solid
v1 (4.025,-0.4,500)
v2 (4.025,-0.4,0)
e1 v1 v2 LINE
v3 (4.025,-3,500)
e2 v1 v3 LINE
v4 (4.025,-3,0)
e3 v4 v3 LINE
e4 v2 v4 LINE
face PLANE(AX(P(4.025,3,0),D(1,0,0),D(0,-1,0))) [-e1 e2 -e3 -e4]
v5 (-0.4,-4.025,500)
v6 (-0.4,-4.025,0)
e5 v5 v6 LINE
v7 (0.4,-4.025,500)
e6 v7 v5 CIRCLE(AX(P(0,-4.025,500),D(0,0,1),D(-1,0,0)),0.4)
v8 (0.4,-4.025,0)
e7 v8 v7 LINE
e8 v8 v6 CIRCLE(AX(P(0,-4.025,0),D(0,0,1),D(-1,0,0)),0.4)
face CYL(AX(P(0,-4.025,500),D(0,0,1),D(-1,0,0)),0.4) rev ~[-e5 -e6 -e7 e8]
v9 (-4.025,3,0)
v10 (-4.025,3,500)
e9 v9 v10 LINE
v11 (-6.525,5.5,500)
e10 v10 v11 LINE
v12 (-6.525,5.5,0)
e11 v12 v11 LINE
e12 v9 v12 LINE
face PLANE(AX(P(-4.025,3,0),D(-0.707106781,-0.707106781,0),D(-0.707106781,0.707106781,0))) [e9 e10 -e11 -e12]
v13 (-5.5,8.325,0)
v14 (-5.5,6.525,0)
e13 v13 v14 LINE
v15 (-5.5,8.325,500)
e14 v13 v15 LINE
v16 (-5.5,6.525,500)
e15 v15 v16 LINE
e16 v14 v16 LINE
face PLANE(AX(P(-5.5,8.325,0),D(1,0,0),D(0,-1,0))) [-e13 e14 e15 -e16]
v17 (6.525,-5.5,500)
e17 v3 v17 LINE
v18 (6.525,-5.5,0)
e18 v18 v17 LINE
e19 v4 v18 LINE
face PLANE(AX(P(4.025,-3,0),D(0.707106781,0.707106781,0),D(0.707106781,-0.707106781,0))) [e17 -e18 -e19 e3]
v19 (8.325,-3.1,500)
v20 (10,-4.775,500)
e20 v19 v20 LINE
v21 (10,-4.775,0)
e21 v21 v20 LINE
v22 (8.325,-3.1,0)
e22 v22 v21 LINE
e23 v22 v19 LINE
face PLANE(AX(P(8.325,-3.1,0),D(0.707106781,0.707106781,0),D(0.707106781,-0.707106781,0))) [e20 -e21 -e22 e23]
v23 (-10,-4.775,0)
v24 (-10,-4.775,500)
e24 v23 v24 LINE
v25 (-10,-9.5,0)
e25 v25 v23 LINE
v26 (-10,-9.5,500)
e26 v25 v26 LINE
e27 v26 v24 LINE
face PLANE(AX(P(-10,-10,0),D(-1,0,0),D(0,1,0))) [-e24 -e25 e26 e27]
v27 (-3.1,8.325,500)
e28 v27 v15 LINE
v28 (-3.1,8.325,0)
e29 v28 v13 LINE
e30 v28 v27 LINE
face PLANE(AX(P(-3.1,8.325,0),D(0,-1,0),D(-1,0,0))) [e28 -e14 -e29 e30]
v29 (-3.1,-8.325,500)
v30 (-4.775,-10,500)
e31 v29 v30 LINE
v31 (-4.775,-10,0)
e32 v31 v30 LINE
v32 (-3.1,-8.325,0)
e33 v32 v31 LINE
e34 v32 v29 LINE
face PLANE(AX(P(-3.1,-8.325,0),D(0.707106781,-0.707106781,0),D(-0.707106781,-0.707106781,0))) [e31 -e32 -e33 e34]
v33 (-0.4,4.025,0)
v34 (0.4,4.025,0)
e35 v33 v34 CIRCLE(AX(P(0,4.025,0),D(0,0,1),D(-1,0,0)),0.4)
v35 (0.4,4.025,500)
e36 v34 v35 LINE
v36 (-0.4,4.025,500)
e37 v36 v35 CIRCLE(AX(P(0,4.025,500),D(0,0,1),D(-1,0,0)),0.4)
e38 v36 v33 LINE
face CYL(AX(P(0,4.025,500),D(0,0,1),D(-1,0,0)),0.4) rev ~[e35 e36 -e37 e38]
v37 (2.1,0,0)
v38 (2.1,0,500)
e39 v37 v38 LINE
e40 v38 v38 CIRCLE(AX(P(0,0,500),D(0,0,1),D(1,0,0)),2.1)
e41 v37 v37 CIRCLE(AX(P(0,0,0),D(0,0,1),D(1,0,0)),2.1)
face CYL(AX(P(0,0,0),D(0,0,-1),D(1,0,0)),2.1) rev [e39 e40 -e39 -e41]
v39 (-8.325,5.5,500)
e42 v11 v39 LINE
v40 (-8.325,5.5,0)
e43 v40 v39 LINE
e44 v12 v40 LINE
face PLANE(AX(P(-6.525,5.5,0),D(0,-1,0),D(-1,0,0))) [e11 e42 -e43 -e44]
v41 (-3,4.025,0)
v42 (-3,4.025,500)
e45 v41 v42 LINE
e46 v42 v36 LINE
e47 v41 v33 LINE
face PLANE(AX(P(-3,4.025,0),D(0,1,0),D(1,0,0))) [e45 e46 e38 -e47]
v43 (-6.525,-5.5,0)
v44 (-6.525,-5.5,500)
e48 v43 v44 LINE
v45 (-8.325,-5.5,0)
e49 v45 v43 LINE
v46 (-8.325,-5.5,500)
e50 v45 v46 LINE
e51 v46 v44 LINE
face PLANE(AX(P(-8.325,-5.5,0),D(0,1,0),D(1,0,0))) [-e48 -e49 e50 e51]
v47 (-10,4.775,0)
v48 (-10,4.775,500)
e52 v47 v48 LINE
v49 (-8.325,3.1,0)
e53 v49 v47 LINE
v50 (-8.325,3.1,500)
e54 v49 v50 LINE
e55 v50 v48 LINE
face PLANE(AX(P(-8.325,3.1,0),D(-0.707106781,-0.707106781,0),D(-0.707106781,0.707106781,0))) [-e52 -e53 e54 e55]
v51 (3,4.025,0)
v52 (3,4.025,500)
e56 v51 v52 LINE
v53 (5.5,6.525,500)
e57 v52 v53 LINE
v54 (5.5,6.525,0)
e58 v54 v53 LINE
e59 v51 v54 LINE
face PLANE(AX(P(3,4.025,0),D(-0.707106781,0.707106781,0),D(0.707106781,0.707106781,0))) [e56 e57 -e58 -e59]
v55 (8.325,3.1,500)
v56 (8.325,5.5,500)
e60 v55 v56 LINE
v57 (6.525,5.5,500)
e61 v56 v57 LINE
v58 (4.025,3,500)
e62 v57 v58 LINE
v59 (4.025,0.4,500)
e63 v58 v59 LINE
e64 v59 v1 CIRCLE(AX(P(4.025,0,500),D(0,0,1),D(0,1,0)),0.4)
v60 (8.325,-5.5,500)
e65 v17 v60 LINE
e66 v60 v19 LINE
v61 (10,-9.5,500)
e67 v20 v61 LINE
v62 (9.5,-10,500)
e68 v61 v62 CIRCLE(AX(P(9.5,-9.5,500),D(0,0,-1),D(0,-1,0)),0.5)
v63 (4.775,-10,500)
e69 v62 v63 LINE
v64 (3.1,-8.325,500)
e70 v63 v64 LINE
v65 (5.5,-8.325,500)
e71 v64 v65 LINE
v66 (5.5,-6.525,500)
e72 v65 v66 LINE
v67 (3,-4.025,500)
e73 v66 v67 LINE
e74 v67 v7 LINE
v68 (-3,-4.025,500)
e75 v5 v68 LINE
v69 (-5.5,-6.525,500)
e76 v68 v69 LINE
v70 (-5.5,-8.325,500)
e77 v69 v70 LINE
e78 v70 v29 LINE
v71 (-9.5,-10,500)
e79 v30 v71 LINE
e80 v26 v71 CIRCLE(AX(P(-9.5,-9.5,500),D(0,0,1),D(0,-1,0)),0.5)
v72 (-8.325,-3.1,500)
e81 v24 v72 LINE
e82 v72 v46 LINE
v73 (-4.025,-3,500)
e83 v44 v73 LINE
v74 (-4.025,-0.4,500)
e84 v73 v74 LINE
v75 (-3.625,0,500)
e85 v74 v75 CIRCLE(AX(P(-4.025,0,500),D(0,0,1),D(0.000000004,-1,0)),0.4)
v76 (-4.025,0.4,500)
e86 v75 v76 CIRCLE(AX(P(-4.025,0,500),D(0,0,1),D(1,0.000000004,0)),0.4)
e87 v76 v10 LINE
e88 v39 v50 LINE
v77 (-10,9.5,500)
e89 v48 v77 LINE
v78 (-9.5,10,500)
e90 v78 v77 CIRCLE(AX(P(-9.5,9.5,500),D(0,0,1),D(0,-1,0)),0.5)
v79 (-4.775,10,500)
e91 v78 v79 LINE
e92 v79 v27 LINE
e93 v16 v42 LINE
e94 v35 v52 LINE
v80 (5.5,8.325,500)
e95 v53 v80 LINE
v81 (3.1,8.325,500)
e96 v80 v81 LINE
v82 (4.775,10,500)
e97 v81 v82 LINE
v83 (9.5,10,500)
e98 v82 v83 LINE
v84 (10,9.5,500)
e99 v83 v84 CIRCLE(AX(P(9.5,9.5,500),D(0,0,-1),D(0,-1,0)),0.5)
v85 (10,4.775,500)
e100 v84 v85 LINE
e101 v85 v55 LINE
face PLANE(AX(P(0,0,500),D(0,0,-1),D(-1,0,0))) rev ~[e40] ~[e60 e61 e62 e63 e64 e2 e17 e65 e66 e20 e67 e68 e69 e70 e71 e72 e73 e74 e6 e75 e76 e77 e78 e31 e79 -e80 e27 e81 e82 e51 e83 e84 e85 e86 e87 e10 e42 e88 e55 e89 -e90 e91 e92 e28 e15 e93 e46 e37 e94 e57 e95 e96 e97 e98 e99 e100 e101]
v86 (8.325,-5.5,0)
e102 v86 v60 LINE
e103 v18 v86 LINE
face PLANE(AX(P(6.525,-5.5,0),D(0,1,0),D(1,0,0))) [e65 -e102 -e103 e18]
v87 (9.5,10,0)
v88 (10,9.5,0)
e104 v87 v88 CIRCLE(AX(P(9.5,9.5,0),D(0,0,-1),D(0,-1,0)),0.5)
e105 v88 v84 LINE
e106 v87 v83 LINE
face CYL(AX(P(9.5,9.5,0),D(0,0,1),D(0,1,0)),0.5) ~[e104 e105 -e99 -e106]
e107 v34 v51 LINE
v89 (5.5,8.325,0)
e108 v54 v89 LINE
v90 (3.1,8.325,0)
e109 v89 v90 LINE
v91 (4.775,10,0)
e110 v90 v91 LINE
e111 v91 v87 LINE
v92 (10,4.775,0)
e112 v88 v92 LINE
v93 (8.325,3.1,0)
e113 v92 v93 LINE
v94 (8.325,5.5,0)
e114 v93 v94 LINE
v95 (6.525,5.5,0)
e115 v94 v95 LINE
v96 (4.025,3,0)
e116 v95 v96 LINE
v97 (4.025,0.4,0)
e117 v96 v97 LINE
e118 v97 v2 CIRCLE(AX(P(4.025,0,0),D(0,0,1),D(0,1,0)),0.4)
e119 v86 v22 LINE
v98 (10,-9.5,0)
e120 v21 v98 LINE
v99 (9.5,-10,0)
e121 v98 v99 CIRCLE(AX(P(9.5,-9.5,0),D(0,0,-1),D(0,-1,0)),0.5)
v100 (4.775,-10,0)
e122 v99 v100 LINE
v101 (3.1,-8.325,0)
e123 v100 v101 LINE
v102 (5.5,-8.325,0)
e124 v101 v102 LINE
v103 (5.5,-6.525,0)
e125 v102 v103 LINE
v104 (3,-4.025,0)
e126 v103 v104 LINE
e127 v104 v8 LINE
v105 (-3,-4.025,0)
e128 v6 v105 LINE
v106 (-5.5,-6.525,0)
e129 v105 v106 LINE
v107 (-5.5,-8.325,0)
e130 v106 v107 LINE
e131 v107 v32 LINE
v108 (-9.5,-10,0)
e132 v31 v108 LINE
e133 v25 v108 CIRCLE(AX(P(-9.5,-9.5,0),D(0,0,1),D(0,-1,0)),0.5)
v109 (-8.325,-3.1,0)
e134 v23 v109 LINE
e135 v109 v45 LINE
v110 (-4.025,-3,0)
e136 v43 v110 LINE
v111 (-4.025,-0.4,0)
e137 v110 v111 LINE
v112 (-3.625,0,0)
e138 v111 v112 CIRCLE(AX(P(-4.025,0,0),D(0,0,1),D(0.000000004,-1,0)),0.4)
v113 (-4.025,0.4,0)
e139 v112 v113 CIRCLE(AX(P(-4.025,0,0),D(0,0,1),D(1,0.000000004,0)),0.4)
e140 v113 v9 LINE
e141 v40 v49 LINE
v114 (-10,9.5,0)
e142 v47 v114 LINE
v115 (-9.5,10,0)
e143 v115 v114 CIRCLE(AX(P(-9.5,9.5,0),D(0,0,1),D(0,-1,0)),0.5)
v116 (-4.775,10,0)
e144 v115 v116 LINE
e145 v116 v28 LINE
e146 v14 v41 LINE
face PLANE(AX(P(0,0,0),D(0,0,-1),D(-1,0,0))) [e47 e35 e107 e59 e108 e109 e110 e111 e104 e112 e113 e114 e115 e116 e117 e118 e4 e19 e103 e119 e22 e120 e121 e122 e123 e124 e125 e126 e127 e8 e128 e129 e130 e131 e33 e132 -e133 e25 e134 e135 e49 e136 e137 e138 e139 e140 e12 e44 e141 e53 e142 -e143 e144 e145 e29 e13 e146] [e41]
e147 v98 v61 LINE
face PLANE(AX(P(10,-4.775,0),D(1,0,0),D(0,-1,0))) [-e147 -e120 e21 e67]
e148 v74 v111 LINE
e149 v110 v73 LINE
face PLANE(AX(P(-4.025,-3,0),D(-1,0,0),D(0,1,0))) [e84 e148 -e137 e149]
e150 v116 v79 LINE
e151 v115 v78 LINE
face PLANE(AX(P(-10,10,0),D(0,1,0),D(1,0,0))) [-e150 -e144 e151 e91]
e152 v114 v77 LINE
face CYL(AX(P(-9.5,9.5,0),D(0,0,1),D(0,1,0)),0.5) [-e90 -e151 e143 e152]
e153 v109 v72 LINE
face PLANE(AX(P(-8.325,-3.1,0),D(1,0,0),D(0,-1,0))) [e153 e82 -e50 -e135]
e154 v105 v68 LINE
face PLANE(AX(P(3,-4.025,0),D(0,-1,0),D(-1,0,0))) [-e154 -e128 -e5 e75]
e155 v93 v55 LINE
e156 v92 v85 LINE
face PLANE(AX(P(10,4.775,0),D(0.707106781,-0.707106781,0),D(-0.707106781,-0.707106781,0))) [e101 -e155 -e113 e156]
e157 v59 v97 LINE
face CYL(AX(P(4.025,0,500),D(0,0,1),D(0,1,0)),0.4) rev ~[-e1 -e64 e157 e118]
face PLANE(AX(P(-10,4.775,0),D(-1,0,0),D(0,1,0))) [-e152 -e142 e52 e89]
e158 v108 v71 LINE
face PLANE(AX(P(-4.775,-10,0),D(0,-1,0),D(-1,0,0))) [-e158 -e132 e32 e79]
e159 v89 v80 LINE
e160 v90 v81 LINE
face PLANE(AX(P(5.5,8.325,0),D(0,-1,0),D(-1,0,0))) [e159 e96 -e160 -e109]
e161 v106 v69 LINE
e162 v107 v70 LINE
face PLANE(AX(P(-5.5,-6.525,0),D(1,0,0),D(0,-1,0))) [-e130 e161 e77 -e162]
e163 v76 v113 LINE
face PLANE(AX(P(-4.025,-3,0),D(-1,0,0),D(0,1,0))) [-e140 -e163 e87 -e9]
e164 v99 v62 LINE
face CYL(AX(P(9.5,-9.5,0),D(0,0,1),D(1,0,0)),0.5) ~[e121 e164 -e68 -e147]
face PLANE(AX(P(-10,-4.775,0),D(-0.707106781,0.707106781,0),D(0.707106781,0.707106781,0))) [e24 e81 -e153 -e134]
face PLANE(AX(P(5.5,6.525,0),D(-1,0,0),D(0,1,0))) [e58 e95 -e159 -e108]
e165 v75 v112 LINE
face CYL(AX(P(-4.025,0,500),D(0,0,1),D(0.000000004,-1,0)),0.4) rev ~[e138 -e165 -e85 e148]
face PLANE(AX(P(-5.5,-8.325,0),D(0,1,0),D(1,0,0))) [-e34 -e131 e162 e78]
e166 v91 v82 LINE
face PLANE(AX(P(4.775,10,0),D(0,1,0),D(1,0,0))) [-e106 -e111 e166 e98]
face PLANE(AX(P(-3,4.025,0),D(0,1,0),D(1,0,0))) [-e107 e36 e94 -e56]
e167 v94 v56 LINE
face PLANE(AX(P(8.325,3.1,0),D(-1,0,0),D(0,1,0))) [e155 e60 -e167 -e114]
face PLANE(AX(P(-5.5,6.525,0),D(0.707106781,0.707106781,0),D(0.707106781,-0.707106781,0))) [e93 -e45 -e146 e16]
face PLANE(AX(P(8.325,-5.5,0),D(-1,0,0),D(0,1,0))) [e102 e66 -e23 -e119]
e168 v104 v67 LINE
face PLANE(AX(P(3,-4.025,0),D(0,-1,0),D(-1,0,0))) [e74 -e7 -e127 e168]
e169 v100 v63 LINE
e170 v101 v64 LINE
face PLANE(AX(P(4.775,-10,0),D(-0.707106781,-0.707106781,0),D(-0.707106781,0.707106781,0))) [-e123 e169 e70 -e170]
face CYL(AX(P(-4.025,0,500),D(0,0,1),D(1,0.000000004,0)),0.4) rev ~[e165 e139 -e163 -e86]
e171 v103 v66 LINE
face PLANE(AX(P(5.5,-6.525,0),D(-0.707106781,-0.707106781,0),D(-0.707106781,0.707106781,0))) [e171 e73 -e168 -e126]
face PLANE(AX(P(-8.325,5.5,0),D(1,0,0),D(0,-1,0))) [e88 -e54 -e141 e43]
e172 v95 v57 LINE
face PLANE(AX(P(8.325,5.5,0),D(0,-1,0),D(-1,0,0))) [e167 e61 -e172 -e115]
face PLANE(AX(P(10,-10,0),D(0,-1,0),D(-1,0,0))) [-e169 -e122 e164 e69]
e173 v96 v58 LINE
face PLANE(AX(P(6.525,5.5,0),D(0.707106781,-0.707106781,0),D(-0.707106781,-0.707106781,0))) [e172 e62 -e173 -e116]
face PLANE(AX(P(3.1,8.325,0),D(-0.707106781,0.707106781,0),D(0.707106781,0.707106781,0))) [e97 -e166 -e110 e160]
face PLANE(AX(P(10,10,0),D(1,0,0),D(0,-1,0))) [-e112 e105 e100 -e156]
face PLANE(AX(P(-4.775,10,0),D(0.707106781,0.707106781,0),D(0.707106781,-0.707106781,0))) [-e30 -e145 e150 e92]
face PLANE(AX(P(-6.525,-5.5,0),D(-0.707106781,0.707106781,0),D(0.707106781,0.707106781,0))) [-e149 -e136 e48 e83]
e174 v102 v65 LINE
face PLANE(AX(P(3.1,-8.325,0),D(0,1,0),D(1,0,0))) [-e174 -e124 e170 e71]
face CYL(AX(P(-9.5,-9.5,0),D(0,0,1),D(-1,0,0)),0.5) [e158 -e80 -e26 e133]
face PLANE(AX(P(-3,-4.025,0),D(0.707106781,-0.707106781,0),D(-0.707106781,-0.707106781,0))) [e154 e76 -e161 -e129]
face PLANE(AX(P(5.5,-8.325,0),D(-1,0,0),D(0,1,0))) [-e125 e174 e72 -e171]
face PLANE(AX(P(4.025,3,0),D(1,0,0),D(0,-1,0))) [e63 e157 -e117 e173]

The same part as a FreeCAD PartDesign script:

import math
import FreeCAD as App
import Part
import Sketcher
from FreeCAD import Vector
Q = App.Units.Quantity


def edges_at(feature, points):
    """Names of the edges that pass closest to the given points."""
    edges = feature.Shape.Edges
    near = lambda p: min(range(len(edges)), key=lambda i: edges[i].distToShape(Part.Vertex(*p))[0])
    return sorted({f"Edge{near(p) + 1}" for p in points})


def add_polygon(sketch, points):
    """Adds a closed chain of lines whose ends are joined by coincident constraints."""
    first, n = sketch.GeometryCount, len(points)
    for a, b in zip(points, points[1:] + points[:1]):
        sketch.addGeometry(Part.LineSegment(App.Vector(*a, 0), App.Vector(*b, 0)), False)
    for i in range(n):
        sketch.addConstraint(Sketcher.Constraint("Coincident", first + i, 2, first + (i + 1) % n, 1))

doc = App.newDocument("Part")
body = doc.addObject("PartDesign::Body", "Body")

# Sketch on XY plane
sketch1 = doc.addObject("Sketcher::SketchObject", "Sketch")
body.addObject(sketch1)
sketch1.AttachmentSupport = (doc.XY_Plane, [""])
sketch1.MapMode = "FlatFace"
add_polygon(sketch1, [(-4.8, 10), (-10, 10), (-10, 4.8), (-8.3, 3.1), (-8.3, 5.5), (-6.5, 5.5), (-4, 3), (-4, -3), (-6.5, -5.5), (-8.3, -5.5), (-8.3, -3.1), (-10, -4.8), (-10, -10), (-4.8, -10), (-3.1, -8.3), (-5.5, -8.3), (-5.5, -6.5), (-3, -4), (3, -4), (5.5, -6.5), (5.5, -8.3), (3.1, -8.3), (4.8, -10), (10, -10), (10, -4.8), (8.3, -3.1), (8.3, -5.5), (6.5, -5.5), (4, -3), (4, 3), (6.5, 5.5), (8.3, 5.5), (8.3, 3.1), (10, 4.8), (10, 10), (4.8, 10), (3.1, 8.3), (5.5, 8.3), (5.5, 6.5), (3, 4), (-3, 4), (-5.5, 6.5), (-5.5, 8.3), (-3.1, 8.3)])  # lines 0-43
sketch1.addGeometry(Part.Circle(Vector(0, 0, 0), Vector(0, 0, 1), 2.1), False)  # 44
sketch1.addConstraint([
    Sketcher.Constraint("Horizontal", 0),
    Sketcher.Constraint("Vertical", 1),
    Sketcher.Constraint("Vertical", 3),
    Sketcher.Constraint("Horizontal", 4),
    Sketcher.Constraint("Vertical", 6),
    Sketcher.Constraint("Horizontal", 8),
    Sketcher.Constraint("Vertical", 9),
    Sketcher.Constraint("Vertical", 11),
    Sketcher.Constraint("Horizontal", 12),
    Sketcher.Constraint("Horizontal", 14),
    Sketcher.Constraint("Vertical", 15),
    Sketcher.Constraint("Horizontal", 17),
    Sketcher.Constraint("Vertical", 19),
    Sketcher.Constraint("Horizontal", 20),
    Sketcher.Constraint("Horizontal", 22),
    Sketcher.Constraint("Vertical", 23),
    Sketcher.Constraint("Vertical", 25),
    Sketcher.Constraint("Horizontal", 26),
    Sketcher.Constraint("Vertical", 28),
    Sketcher.Constraint("Horizontal", 30),
    Sketcher.Constraint("Vertical", 31),
    Sketcher.Constraint("Vertical", 33),
    Sketcher.Constraint("Horizontal", 34),
    Sketcher.Constraint("Horizontal", 36),
    Sketcher.Constraint("Vertical", 37),
    Sketcher.Constraint("Horizontal", 39),
    Sketcher.Constraint("Vertical", 41),
    Sketcher.Constraint("Horizontal", 42),
    Sketcher.Constraint("Coincident", 44, 3, -1, 1),
    Sketcher.Constraint("Symmetric", 0, 2, 22, 2, -1, 1),
    Sketcher.Constraint("Symmetric", 2, 2, 24, 2, -1, 1),
    Sketcher.Constraint("Symmetric", 4, 2, 26, 2, -1, 1),
    Sketcher.Constraint("Symmetric", 5, 2, 27, 2, -1, 1),
    Sketcher.Constraint("Symmetric", 7, 2, 29, 2, -1, 1),
    Sketcher.Constraint("Symmetric", 9, 2, 31, 2, -1, 1),
    Sketcher.Constraint("Symmetric", 10, 2, 32, 2, -1, 1),
    Sketcher.Constraint("Symmetric", 12, 2, 34, 2, -1, 1),
    Sketcher.Constraint("Symmetric", 13, 2, 35, 2, -1, 1),
    Sketcher.Constraint("Symmetric", 15, 2, 37, 2, -1, 1),
    Sketcher.Constraint("Symmetric", 16, 2, 38, 2, -1, 1),
    Sketcher.Constraint("Symmetric", 18, 2, 40, 2, -1, 1),
    Sketcher.Constraint("Symmetric", 20, 2, 42, 2, -1, 1),
    Sketcher.Constraint("Symmetric", 15, 2, 18, 2, -2),
    Sketcher.Constraint("Symmetric", 13, 2, 20, 2, -2),
    Sketcher.Constraint("Symmetric", 12, 2, 21, 2, -2),
    Sketcher.Constraint("Symmetric", 10, 2, 23, 2, -2),
    Sketcher.Constraint("Symmetric", 9, 2, 24, 2, -2),
    Sketcher.Constraint("Symmetric", 7, 2, 26, 2, -2),
    Sketcher.Constraint("Parallel", 2, 5),
    Sketcher.Constraint("Perpendicular", 5, 7),
    Sketcher.Constraint("Parallel", 7, 10),
    Sketcher.Constraint("Parallel", 10, 13),
    Sketcher.Constraint("Parallel", 13, 16),
    Sketcher.Constraint("Perpendicular", 16, 18),
    Sketcher.Constraint("Parallel", 18, 21),
    Sketcher.Constraint("Perpendicular", 27, 29),
    Sketcher.Constraint("Perpendicular", 38, 40),
    Sketcher.Constraint("Parallel", 40, 43),
    Sketcher.Constraint("Equal", 34, 1),
    Sketcher.Constraint("Equal", 42, 3),
    Sketcher.Constraint("Equal", 39, 6),
    Sketcher.Constraint("Equal", 30, 15),
    Sketcher.Constraint("Equal", 10, 13),
    Sketcher.Constraint("Equal", 7, 16),
    Sketcher.Constraint("Diameter", 44, Q("4.2 mm")),
    Sketcher.Constraint("DistanceX", 17, 1, 17, 2, Q("6 mm")),
    Sketcher.Constraint("DistanceX", 4, 1, 4, 2, Q("1.8 mm")),
    Sketcher.Constraint("DistanceX", 14, 2, 14, 1, Q("2.4 mm")),
    Sketcher.Constraint("DistanceX", 0, 2, -1, 1, Q("10 mm")),
    Sketcher.Constraint("DistanceY", -1, 1, 2, 2, Q("3.1 mm")),
    Sketcher.Constraint("DistanceX", 0, 2, 0, 1, Q("5.225 mm")),
])
pad1 = doc.addObject("PartDesign::Pad", "Pad")
body.addObject(pad1)
pad1.Profile = sketch1
pad1.Length = 500
doc.recompute()

fillet = doc.addObject("PartDesign::Fillet", "Fillet")
body.addObject(fillet)
fillet.Base = (pad1, edges_at(pad1, [
    (10, -10, 250),
    (-10, -10, 250),
    (-10, 10, 250),
    (10, 10, 250),
]))
fillet.Radius = 0.5

# Sketch on XY plane
sketch2 = doc.addObject("Sketcher::SketchObject", "Sketch001")
body.addObject(sketch2)
sketch2.AttachmentSupport = (doc.XY_Plane, [""])
sketch2.MapMode = "FlatFace"
sketch2.AttachmentOffset = App.Placement(Vector(0, 0, 500), App.Rotation())
sketch2.addGeometry([
    Part.ArcOfCircle(Part.Circle(Vector(-4.03, 0, 0), Vector(0, 0, 1), 0.4), math.radians(90), math.radians(270)),  # 0
    Part.ArcOfCircle(Part.Circle(Vector(-4.03, 0, 0), Vector(0, 0, 1), 0.4), math.radians(-90), math.radians(0)),  # 1
    Part.ArcOfCircle(Part.Circle(Vector(-4.03, 0, 0), Vector(0, 0, 1), 0.4), math.radians(0), math.radians(90)),  # 2
    Part.Circle(Vector(0, 4.03, 0), Vector(0, 0, 1), 0.4),  # 3
    Part.ArcOfCircle(Part.Circle(Vector(4.03, 0, 0), Vector(0, 0, 1), 0.4), math.radians(90), math.radians(270)),  # 4
    Part.ArcOfCircle(Part.Circle(Vector(4.02, 0, 0), Vector(0, 0, 1), 0.4), math.radians(-90), math.radians(0)),  # 5
    Part.ArcOfCircle(Part.Circle(Vector(4.02, 0, 0), Vector(0, 0, 1), 0.4), math.radians(0), math.radians(90)),  # 6
    Part.Circle(Vector(0, -4.03, 0), Vector(0, 0, 1), 0.4),  # 7
], False)
sketch2.addConstraint([
    Sketcher.Constraint("Tangent", 0, 2, 1, 1),
    Sketcher.Constraint("Tangent", 1, 2, 2, 1),
    Sketcher.Constraint("Tangent", 2, 2, 0, 1),
    Sketcher.Constraint("Tangent", 4, 2, 5, 1),
    Sketcher.Constraint("Tangent", 5, 2, 6, 1),
    Sketcher.Constraint("Tangent", 6, 2, 4, 1),
    Sketcher.Constraint("Equal", 2, 3),
    Sketcher.Constraint("Equal", 3, 4),
    Sketcher.Constraint("Equal", 6, 7),
    Sketcher.Constraint("Symmetric", 0, 3, 4, 3, -1, 1),
    Sketcher.Constraint("Symmetric", 3, 3, 7, 3, -1, 1),
    Sketcher.Constraint("Symmetric", 0, 2, 4, 2, -2),
    Sketcher.Constraint("PointOnObject", 3, 3, -2),
    Sketcher.Constraint("PointOnObject", 1, 2, -1),
    Sketcher.Constraint("PointOnObject", 5, 2, -1),
    Sketcher.Constraint("Vertical", 2, 3, 0, 2),
    Sketcher.Constraint("Vertical", 0, 2, 2, 2),
    Sketcher.Constraint("Vertical", 4, 2, 6, 2),
    Sketcher.Constraint("Diameter", 3, Q("0.8 mm")),
    Sketcher.Constraint("DistanceX", 0, 3, 4, 3, Q("8.05 mm")),
    Sketcher.Constraint("DistanceY", -1, 1, 3, 3, Q("4.025 mm")),
])
pocket1 = doc.addObject("PartDesign::Pocket", "Pocket")
body.addObject(pocket1)
pocket1.Profile = sketch2
pocket1.Type = "ThroughAll"

doc.recompute()
